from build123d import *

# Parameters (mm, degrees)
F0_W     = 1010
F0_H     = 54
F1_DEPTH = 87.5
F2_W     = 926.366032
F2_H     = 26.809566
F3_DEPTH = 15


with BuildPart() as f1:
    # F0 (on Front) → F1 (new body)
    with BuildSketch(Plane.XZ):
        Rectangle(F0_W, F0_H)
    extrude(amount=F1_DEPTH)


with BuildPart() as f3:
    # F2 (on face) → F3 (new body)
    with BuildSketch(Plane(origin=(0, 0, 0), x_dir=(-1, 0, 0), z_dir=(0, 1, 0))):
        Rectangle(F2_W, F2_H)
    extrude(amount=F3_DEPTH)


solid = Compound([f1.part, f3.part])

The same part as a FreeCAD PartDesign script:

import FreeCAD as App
import Part
import Sketcher

V = App.Vector

doc = App.newDocument("Part")
body = doc.addObject("PartDesign::Body", "Body")

sketch1 = doc.addObject("Sketcher::SketchObject", "Sketch")
body.addObject(sketch1)
sketch1.AttachmentSupport = (doc.XZ_Plane, [""])
sketch1.MapMode = "FlatFace"
sketch1.addGeometry(Part.LineSegment(V(-505, 27, 0), V(-505, -27, 0)), False)
sketch1.addGeometry(Part.LineSegment(V(-505, -27, 0), V(505, -27, 0)), False)
sketch1.addGeometry(Part.LineSegment(V(505, -27, 0), V(505, 27, 0)), False)
sketch1.addGeometry(Part.LineSegment(V(505, 27, 0), V(-505, 27, 0)), False)
sketch1.addConstraint(Sketcher.Constraint("Coincident", 0, 2, 1, 1))
sketch1.addConstraint(Sketcher.Constraint("Coincident", 1, 2, 2, 1))
sketch1.addConstraint(Sketcher.Constraint("Coincident", 2, 2, 3, 1))
sketch1.addConstraint(Sketcher.Constraint("Coincident", 3, 2, 0, 1))
sketch1.addConstraint(Sketcher.Constraint("Vertical", 0))
sketch1.addConstraint(Sketcher.Constraint("Horizontal", 1))
sketch1.addConstraint(Sketcher.Constraint("Vertical", 2))
sketch1.addConstraint(Sketcher.Constraint("Horizontal", 3))
sketch1.addConstraint(Sketcher.Constraint("Symmetric", 0, 2, 2, 2, -1, 1))
sketch1.addConstraint(Sketcher.Constraint("DistanceX", 1, 1, 1, 2, 1010.0))
sketch1.addConstraint(Sketcher.Constraint("DistanceY", 0, 2, 0, 1, 54.0))
pad1 = doc.addObject("PartDesign::Pad", "Pad")
body.addObject(pad1)
pad1.Profile = sketch1
pad1.Length = 87.5
body2 = doc.addObject("PartDesign::Body", "Body001")

sketch2 = doc.addObject("Sketcher::SketchObject", "Sketch001")
body2.addObject(sketch2)
sketch2.AttachmentSupport = (doc.getObject("XZ_Plane001"), [""])
sketch2.MapMode = "FlatFace"
sketch2.addGeometry(Part.LineSegment(V(463, 13, 0), V(463, -13, 0)), False)
sketch2.addGeometry(Part.LineSegment(V(463, -13, 0), V(-463, -13, 0)), False)
sketch2.addGeometry(Part.LineSegment(V(-463, -13, 0), V(-463, 13, 0)), False)
sketch2.addGeometry(Part.LineSegment(V(-463, 13, 0), V(463, 13, 0)), False)
sketch2.addConstraint(Sketcher.Constraint("Coincident", 0, 2, 1, 1))
sketch2.addConstraint(Sketcher.Constraint("Coincident", 1, 2, 2, 1))
sketch2.addConstraint(Sketcher.Constraint("Coincident", 2, 2, 3, 1))
sketch2.addConstraint(Sketcher.Constraint("Coincident", 3, 2, 0, 1))
sketch2.addConstraint(Sketcher.Constraint("Vertical", 0))
sketch2.addConstraint(Sketcher.Constraint("Horizontal", 1))
sketch2.addConstraint(Sketcher.Constraint("Vertical", 2))
sketch2.addConstraint(Sketcher.Constraint("Horizontal", 3))
sketch2.addConstraint(Sketcher.Constraint("Symmetric", 0, 2, 2, 2, -1, 1))
sketch2.addConstraint(Sketcher.Constraint("DistanceX", 1, 2, 1, 1, 926.366032))
sketch2.addConstraint(Sketcher.Constraint("DistanceY", 0, 2, 0, 1, 26.809566))
pad2 = doc.addObject("PartDesign::Pad", "Pad001")
body2.addObject(pad2)
pad2.Profile = sketch2
pad2.Length = 15
pad2.Reversed = True

doc.recompute()
